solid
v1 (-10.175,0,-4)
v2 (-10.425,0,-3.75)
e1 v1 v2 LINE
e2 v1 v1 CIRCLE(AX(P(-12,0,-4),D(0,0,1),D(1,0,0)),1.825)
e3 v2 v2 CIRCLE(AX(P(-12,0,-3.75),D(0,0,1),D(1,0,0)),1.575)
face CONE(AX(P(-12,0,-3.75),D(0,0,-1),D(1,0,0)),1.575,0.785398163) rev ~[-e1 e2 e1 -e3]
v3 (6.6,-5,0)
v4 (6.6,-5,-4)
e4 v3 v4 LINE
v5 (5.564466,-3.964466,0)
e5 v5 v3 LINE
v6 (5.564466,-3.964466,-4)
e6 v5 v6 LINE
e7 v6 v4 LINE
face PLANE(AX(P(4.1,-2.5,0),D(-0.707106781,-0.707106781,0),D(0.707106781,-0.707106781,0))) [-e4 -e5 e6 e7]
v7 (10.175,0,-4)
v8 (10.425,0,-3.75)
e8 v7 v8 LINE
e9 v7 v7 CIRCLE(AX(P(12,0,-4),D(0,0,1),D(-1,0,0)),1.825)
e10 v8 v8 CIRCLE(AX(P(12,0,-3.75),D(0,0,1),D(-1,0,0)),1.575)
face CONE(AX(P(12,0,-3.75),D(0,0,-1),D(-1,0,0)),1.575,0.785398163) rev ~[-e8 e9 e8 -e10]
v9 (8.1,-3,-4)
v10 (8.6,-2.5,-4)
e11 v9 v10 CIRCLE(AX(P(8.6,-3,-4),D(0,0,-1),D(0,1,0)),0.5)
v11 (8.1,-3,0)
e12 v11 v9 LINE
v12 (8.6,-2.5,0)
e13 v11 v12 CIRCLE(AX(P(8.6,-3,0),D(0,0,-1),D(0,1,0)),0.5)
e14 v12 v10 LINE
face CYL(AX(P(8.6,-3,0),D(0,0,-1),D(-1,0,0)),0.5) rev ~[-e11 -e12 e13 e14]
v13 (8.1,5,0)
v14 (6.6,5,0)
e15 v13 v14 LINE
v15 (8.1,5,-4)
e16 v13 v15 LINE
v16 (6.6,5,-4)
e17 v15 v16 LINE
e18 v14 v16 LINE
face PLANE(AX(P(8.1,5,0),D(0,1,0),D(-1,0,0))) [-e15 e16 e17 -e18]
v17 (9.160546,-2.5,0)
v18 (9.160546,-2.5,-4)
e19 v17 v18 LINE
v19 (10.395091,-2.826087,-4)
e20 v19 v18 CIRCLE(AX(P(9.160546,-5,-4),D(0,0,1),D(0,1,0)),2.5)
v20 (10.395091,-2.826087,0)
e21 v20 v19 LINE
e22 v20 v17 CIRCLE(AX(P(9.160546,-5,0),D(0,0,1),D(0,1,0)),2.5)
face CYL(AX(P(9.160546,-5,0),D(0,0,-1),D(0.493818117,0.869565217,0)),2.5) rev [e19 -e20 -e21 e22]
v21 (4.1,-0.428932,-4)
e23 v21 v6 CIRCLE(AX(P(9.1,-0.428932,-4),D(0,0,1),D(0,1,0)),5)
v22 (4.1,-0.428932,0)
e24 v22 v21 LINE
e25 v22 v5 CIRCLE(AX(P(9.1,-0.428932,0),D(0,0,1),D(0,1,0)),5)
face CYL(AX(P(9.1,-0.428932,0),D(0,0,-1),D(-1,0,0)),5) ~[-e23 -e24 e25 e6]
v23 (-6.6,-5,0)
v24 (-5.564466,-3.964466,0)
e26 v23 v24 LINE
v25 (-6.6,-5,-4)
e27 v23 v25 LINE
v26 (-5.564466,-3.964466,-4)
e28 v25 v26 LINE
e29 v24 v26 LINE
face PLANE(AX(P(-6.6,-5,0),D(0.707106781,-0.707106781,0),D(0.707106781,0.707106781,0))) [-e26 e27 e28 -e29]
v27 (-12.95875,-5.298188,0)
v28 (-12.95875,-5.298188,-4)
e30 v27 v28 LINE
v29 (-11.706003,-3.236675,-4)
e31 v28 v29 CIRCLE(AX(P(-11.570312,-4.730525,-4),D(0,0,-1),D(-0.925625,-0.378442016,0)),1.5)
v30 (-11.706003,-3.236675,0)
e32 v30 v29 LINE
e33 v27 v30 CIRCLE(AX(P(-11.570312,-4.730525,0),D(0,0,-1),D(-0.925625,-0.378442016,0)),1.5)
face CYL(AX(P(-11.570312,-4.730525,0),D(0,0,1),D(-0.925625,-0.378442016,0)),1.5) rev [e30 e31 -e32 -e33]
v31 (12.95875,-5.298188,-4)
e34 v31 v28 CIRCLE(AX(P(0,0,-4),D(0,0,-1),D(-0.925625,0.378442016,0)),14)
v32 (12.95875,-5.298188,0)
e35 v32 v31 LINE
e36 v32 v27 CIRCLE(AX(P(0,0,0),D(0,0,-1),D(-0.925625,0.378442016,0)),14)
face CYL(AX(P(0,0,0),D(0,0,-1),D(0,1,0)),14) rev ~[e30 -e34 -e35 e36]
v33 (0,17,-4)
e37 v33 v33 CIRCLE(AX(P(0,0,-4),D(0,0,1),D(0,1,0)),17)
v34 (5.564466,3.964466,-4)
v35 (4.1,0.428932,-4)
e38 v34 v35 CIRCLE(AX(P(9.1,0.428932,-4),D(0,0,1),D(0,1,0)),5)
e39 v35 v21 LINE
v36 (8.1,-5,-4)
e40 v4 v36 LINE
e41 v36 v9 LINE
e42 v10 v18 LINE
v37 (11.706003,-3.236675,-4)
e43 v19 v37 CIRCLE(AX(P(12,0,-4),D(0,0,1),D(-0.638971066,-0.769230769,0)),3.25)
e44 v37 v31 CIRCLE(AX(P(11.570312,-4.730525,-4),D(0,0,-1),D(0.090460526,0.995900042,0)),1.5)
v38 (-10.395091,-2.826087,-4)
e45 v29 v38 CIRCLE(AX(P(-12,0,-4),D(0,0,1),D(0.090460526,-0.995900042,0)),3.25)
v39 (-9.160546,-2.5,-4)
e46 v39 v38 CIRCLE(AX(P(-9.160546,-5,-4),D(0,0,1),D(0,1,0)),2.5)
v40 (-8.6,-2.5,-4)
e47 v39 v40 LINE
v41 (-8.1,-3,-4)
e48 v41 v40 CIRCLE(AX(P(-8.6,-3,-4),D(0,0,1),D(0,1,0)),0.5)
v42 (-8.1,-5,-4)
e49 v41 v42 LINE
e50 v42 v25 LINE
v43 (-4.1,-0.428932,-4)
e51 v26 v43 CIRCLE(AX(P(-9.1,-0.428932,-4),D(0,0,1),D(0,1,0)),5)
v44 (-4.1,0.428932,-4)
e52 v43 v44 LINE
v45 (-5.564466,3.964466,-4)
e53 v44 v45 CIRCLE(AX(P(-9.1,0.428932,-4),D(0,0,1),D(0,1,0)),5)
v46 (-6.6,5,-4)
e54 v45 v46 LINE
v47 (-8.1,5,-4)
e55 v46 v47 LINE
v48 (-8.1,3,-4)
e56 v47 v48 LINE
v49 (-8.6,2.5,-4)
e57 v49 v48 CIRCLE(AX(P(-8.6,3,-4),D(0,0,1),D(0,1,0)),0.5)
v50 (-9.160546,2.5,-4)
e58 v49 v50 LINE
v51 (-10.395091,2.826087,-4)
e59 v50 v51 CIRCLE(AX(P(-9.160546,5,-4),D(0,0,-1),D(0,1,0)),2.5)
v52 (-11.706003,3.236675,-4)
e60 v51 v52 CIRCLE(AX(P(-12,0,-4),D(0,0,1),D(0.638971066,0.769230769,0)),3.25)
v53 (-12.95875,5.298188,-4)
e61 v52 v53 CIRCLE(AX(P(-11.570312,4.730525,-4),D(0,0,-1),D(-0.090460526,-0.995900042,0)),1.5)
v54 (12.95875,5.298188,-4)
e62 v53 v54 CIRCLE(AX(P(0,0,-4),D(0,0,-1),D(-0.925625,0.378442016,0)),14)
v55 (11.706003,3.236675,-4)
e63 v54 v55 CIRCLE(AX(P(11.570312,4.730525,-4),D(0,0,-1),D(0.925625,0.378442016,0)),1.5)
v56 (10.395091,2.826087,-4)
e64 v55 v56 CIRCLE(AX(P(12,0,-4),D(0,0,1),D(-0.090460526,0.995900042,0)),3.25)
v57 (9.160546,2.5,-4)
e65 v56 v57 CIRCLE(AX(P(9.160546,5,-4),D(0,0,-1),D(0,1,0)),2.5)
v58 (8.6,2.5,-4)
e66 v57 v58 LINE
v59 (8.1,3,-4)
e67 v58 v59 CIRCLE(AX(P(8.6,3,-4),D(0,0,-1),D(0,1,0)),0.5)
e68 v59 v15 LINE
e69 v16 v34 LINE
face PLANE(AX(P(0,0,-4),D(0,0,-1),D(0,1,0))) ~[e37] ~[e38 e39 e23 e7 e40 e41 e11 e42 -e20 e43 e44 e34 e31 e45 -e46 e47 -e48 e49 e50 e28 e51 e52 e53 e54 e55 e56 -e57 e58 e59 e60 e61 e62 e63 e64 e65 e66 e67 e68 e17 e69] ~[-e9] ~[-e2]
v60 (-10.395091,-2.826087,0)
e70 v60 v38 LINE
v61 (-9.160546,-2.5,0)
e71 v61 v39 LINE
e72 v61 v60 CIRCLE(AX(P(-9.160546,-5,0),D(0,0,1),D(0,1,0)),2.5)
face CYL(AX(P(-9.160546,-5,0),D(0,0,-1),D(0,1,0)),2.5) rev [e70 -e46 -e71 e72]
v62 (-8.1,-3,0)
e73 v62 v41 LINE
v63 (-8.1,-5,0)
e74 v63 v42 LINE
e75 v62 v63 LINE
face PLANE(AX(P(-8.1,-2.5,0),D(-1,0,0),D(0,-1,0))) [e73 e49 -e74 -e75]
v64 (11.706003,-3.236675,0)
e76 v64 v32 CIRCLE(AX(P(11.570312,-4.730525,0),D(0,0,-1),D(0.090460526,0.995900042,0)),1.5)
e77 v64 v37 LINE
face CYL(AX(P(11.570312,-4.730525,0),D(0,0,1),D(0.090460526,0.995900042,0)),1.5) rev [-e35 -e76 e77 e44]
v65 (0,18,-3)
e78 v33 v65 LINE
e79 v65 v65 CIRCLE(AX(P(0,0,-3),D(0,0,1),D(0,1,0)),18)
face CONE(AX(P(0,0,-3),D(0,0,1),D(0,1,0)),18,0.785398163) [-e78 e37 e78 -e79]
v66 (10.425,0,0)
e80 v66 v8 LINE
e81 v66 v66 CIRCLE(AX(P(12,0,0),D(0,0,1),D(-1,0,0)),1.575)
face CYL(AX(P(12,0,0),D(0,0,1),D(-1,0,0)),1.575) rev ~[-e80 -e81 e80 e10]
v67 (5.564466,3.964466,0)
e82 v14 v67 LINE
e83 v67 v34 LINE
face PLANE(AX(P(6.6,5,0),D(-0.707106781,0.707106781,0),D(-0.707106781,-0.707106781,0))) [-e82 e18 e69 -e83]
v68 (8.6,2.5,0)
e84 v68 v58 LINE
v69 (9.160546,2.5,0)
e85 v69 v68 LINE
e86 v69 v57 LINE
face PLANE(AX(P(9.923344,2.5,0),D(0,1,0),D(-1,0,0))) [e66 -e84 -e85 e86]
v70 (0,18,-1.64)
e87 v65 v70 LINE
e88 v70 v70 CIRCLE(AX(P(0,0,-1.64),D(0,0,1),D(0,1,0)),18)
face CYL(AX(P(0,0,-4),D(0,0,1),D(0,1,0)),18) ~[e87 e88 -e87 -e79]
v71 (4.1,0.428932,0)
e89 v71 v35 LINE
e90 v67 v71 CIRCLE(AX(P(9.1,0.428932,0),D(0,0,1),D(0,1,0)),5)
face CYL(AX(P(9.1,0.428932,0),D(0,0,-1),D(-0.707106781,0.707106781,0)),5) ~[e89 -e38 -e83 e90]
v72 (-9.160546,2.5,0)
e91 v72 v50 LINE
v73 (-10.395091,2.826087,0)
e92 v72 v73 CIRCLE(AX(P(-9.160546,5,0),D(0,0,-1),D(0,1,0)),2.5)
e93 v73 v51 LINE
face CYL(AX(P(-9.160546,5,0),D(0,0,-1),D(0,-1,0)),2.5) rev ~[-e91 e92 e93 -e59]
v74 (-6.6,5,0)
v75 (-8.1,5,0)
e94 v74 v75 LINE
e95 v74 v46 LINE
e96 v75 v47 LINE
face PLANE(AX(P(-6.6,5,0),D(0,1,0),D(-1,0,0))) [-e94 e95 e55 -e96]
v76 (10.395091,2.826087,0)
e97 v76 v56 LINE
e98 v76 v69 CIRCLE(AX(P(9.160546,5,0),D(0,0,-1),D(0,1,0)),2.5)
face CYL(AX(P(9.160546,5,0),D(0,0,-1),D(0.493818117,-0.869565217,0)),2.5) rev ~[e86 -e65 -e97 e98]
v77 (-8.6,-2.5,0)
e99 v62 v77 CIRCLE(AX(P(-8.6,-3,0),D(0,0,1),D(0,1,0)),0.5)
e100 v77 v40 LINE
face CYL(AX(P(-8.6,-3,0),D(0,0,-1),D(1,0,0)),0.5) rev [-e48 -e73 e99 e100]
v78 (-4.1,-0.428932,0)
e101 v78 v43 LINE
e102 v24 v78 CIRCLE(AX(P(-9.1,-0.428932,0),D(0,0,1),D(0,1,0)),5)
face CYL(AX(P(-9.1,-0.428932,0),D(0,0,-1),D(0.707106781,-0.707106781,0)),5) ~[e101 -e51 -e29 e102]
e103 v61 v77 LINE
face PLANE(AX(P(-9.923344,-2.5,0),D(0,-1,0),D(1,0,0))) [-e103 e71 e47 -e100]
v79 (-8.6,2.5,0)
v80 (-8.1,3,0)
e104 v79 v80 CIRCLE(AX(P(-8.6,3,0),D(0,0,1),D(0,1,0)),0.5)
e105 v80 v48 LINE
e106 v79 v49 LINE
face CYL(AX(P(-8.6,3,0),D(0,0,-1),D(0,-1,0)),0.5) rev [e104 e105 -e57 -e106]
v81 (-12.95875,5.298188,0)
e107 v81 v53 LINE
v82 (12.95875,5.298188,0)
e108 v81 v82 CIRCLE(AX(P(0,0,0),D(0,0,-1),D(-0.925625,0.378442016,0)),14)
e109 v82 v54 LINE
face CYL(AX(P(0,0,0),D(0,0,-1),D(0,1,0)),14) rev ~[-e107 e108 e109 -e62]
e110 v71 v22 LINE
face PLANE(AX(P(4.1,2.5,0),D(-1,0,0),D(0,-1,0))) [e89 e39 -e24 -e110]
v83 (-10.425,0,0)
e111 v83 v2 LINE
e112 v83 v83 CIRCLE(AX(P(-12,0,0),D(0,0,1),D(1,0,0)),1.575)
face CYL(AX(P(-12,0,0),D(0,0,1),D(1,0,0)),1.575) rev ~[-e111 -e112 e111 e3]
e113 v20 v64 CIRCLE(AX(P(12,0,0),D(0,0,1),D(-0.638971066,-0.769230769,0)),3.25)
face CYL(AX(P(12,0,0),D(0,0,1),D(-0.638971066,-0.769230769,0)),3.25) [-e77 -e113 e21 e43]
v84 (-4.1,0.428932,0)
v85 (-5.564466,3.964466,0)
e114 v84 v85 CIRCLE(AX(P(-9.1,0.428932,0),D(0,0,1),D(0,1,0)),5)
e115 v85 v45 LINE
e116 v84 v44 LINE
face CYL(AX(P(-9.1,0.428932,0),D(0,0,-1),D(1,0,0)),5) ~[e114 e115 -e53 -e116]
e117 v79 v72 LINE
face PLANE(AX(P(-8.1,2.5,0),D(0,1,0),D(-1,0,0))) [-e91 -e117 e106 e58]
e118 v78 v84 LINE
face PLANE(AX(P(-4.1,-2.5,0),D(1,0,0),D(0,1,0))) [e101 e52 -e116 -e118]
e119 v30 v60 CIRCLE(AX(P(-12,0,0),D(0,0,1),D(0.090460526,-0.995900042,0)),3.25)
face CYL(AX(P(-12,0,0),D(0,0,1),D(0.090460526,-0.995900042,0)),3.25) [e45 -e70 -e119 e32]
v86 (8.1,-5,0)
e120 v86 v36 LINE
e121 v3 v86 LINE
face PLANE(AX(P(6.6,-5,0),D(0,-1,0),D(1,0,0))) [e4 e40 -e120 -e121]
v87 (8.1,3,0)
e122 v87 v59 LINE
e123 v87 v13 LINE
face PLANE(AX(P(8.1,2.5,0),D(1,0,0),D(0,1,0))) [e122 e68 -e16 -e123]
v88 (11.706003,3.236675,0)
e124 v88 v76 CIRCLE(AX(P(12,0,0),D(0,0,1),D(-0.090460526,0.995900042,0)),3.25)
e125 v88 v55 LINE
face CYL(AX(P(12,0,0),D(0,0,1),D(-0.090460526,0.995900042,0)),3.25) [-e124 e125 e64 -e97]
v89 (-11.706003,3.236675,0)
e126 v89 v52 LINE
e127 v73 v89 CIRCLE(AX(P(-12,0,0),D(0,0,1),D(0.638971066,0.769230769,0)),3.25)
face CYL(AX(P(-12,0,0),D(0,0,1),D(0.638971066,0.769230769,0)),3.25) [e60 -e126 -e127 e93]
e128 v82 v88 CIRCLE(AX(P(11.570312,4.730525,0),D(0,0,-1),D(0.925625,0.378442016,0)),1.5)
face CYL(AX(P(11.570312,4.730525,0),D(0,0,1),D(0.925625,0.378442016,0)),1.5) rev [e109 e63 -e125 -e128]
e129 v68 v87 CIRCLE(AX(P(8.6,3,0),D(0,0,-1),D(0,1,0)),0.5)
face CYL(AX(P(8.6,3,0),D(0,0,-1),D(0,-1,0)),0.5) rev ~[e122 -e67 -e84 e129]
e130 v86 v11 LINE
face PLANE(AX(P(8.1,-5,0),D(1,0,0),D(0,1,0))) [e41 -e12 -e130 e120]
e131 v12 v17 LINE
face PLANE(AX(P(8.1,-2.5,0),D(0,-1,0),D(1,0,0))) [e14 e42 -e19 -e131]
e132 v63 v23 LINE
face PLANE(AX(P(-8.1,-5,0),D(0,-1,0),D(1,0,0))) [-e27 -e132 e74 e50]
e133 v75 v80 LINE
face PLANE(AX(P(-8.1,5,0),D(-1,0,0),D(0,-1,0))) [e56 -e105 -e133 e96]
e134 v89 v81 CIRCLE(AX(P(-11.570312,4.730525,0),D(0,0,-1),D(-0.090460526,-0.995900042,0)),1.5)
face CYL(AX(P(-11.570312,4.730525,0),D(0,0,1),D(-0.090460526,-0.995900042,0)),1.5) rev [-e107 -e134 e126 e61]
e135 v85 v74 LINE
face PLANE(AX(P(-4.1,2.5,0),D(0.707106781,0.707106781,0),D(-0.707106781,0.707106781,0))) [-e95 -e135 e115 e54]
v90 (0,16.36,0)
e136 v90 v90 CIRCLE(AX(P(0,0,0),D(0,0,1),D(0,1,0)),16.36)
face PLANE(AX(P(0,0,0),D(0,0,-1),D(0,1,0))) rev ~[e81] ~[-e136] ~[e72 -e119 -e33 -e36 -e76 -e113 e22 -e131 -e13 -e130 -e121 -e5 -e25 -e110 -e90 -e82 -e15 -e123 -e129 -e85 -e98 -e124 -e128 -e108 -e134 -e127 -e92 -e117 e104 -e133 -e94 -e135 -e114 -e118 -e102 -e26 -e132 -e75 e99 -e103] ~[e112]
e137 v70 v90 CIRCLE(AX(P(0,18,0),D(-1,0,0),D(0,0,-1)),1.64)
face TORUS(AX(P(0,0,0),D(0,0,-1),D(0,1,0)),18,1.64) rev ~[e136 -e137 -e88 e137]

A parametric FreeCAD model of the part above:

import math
import FreeCAD as App
import Part
import Sketcher
from FreeCAD import Vector
Q = App.Units.Quantity


def edges_at(feature, points):
    """Names of the edges that pass closest to the given points."""
    edges = feature.Shape.Edges
    near = lambda p: min(range(len(edges)), key=lambda i: edges[i].distToShape(Part.Vertex(*p))[0])
    return sorted({f"Edge{near(p) + 1}" for p in points})

doc = App.newDocument("Part")
body = doc.addObject("PartDesign::Body", "Body")

sketch1 = doc.addObject("Sketcher::SketchObject", "Sketch")
body.addObject(sketch1)
sketch1.AttachmentSupport = (doc.YZ_Plane, [""])
sketch1.MapMode = "FlatFace"
sketch1.addGeometry(Part.LineSegment(Vector(16.36, 0, 0), Vector(14, 0, 0)), False)
sketch1.addGeometry(Part.LineSegment(Vector(14, 0, 0), Vector(14, -4, 0)), False)
sketch1.addGeometry(Part.LineSegment(Vector(14, -4, 0), Vector(18, -4, 0)), False)
sketch1.addGeometry(Part.LineSegment(Vector(18, -4, 0), Vector(18, -1.64, 0)), False)
sketch1.addGeometry(Part.ArcOfCircle(Part.Circle(Vector(18, 0, 0), Vector(0, 0, 1), 1.64), math.radians(180), math.radians(270)), False)
sketch1.addConstraint(Sketcher.Constraint("Coincident", 0, 2, 1, 1))
sketch1.addConstraint(Sketcher.Constraint("Coincident", 1, 2, 2, 1))
sketch1.addConstraint(Sketcher.Constraint("Coincident", 2, 2, 3, 1))
sketch1.addConstraint(Sketcher.Constraint("Coincident", 3, 2, 4, 2))
sketch1.addConstraint(Sketcher.Constraint("Coincident", 4, 1, 0, 1))
sketch1.addConstraint(Sketcher.Constraint("Horizontal", 0))
sketch1.addConstraint(Sketcher.Constraint("Vertical", 1))
sketch1.addConstraint(Sketcher.Constraint("Horizontal", 2))
sketch1.addConstraint(Sketcher.Constraint("Vertical", 3))
sketch1.addConstraint(Sketcher.Constraint("PointOnObject", 4, 3, -1))
sketch1.addConstraint(Sketcher.Constraint("PointOnObject", 0, 2, -1))
sketch1.addConstraint(Sketcher.Constraint("Vertical", 4, 3, 2, 2))
sketch1.addConstraint(Sketcher.Constraint("Equal", 2, 1))
sketch1.addConstraint(Sketcher.Constraint("DistanceX", 2, 1, 2, 2, Q("4 mm")))
sketch1.addConstraint(Sketcher.Constraint("Radius", 4, Q("1.64 mm")))
sketch1.addConstraint(Sketcher.Constraint("DistanceX", -1, 1, 4, 3, Q("18 mm")))
revolution = doc.addObject("PartDesign::Revolution", "Revolution")
body.addObject(revolution)
revolution.Profile = sketch1
revolution.ReferenceAxis = (sketch1, ["V_Axis"])
revolution.Angle = 360

sketch2 = doc.addObject("Sketcher::SketchObject", "Sketch001")
body.addObject(sketch2)
sketch2.AttachmentSupport = (doc.XY_Plane, [""])
sketch2.MapMode = "FlatFace"
sketch2.addGeometry(Part.LineSegment(Vector(-8.1, 2.5, 0), Vector(-9.923344, 2.5, 0)), False)
sketch2.addGeometry(Part.ArcOfCircle(Part.Circle(Vector(-12, 0, 0), Vector(0, 0, 1), 3.25), math.radians(50.284863), math.radians(84.809899)), False)
sketch2.addGeometry(Part.ArcOfCircle(Part.Circle(Vector(-11.570312, 4.730525, 0), Vector(0, 0, 1), 1.5), math.radians(157.762789), math.radians(264.809899)), False)
sketch2.addGeometry(Part.ArcOfCircle(Part.Circle(Vector(0, 0, 0), Vector(0, 0, 1), 14), math.radians(157.762789), math.radians(202.237211)), False)
sketch2.addGeometry(Part.ArcOfCircle(Part.Circle(Vector(-11.570312, -4.730525, 0), Vector(0, 0, 1), 1.5), math.radians(95.190101), math.radians(202.237211)), False)
sketch2.addGeometry(Part.ArcOfCircle(Part.Circle(Vector(-12, 0, 0), Vector(0, 0, 1), 3.25), math.radians(-84.809899), math.radians(-50.284863)), False)
sketch2.addGeometry(Part.LineSegment(Vector(-9.923344, -2.5, 0), Vector(-8.1, -2.5, 0)), False)
sketch2.addGeometry(Part.LineSegment(Vector(-8.1, -2.5, 0), Vector(-8.1, -5, 0)), False)
sketch2.addGeometry(Part.LineSegment(Vector(-8.1, -5, 0), Vector(-6.6, -5, 0)), False)
sketch2.addGeometry(Part.LineSegment(Vector(-6.6, -5, 0), Vector(-4.1, -2.5, 0)), False)
sketch2.addGeometry(Part.LineSegment(Vector(-4.1, -2.5, 0), Vector(-4.1, 2.5, 0)), False)
sketch2.addGeometry(Part.LineSegment(Vector(-4.1, 2.5, 0), Vector(-6.6, 5, 0)), False)
sketch2.addGeometry(Part.LineSegment(Vector(-6.6, 5, 0), Vector(-8.1, 5, 0)), False)
sketch2.addGeometry(Part.LineSegment(Vector(-8.1, 5, 0), Vector(-8.1, 2.5, 0)), False)
sketch2.addGeometry(Part.Circle(Vector(-12, 0, 0), Vector(0, 0, 1), 1.575), False)
sketch2.addConstraint(Sketcher.Constraint("Coincident", 0, 2, 1, 1))
sketch2.addConstraint(Sketcher.Constraint("Tangent", 1, 2, 2, 2))
sketch2.addConstraint(Sketcher.Constraint("Tangent", 2, 1, 3, 1))
sketch2.addConstraint(Sketcher.Constraint("Tangent", 3, 2, 4, 2))
sketch2.addConstraint(Sketcher.Constraint("Tangent", 4, 1, 5, 1))
sketch2.addConstraint(Sketcher.Constraint("Coincident", 5, 2, 6, 1))
sketch2.addConstraint(Sketcher.Constraint("Coincident", 6, 2, 7, 1))
sketch2.addConstraint(Sketcher.Constraint("Coincident", 7, 2, 8, 1))
sketch2.addConstraint(Sketcher.Constraint("Coincident", 8, 2, 9, 1))
sketch2.addConstraint(Sketcher.Constraint("Coincident", 9, 2, 10, 1))
sketch2.addConstraint(Sketcher.Constraint("Coincident", 10, 2, 11, 1))
sketch2.addConstraint(Sketcher.Constraint("Coincident", 11, 2, 12, 1))
sketch2.addConstraint(Sketcher.Constraint("Coincident", 12, 2, 13, 1))
sketch2.addConstraint(Sketcher.Constraint("Coincident", 13, 2, 0, 1))
sketch2.addConstraint(Sketcher.Constraint("Horizontal", 0))
sketch2.addConstraint(Sketcher.Constraint("Horizontal", 6))
sketch2.addConstraint(Sketcher.Constraint("Vertical", 7))
sketch2.addConstraint(Sketcher.Constraint("Horizontal", 8))
sketch2.addConstraint(Sketcher.Constraint("Vertical", 10))
sketch2.addConstraint(Sketcher.Constraint("Horizontal", 12))
sketch2.addConstraint(Sketcher.Constraint("Vertical", 13))
sketch2.addConstraint(Sketcher.Constraint("Coincident", 3, 3, -1, 1))
sketch2.addConstraint(Sketcher.Constraint("Coincident", 5, 3, 1, 3))
sketch2.addConstraint(Sketcher.Constraint("Coincident", 14, 3, 1, 3))
sketch2.addConstraint(Sketcher.Constraint("Equal", 2, 4))
sketch2.addConstraint(Sketcher.Constraint("Equal", 1, 5))
sketch2.addConstraint(Sketcher.Constraint("Symmetric", 0, 2, 5, 2, -1))
sketch2.addConstraint(Sketcher.Constraint("Symmetric", 8, 2, 11, 2, -1))
sketch2.addConstraint(Sketcher.Constraint("Perpendicular", 9, 11))
sketch2.addConstraint(Sketcher.Constraint("Horizontal", 6, 2, 9, 2))
sketch2.addConstraint(Sketcher.Constraint("Horizontal", 0, 2, 10, 2))
sketch2.addConstraint(Sketcher.Constraint("Vertical", 7, 2, 12, 2))
sketch2.addConstraint(Sketcher.Constraint("Radius", 3, Q("14 mm")))
sketch2.addConstraint(Sketcher.Constraint("Radius", 2, Q("1.5 mm")))
sketch2.addConstraint(Sketcher.Constraint("Diameter", 14, Q("3.15 mm")))
sketch2.addConstraint(Sketcher.Constraint("DistanceY", 10, 1, 10, 2, Q("5 mm")))
sketch2.addConstraint(Sketcher.Constraint("Radius", 1, Q("3.25 mm")))
sketch2.addConstraint(Sketcher.Constraint("DistanceX", 8, 1, 8, 2, Q("1.5 mm")))
sketch2.addConstraint(Sketcher.Constraint("DistanceY", 7, 2, 7, 1, Q("2.5 mm")))
sketch2.addConstraint(Sketcher.Constraint("DistanceX", 1, 3, -1, 1, Q("12 mm")))
sketch2.addConstraint(Sketcher.Constraint("DistanceX", 6, 2, -1, 1, Q("8.1 mm")))
pad1 = doc.addObject("PartDesign::Pad", "Pad")
body.addObject(pad1)
pad1.Profile = sketch2
pad1.Length = 4
pad1.Reversed = True
body2 = doc.addObject("PartDesign::Body", "Body001")
doc.recompute()

body2.BaseFeature = body
doc.recompute()

body.Placement = App.Placement(Vector(0, 0, 0), App.Rotation(Vector(0, 0, -1), 180))
boolean = doc.addObject("PartDesign::Boolean", "Boolean")
body2.addObject(boolean)
boolean.Type = "Fuse"
boolean.addObjects([body])
doc.recompute()

fillet = doc.addObject("PartDesign::Fillet", "Fillet")
body2.addObject(fillet)
fillet.Base = (boolean, edges_at(boolean, [
    (-4.1, -2.5, -2),
    (-4.1, 2.5, -2),
    (4.1, 2.5, -2),
    (4.1, -2.5, -2),
]))
fillet.Radius = 5
doc.recompute()

fillet2 = doc.addObject("PartDesign::Fillet", "Fillet001")
body2.addObject(fillet2)
fillet2.Base = (fillet, edges_at(fillet, [
    (-9.923, 2.5, -2),
    (-9.923, -2.5, -2),
    (9.923, 2.5, -2),
    (9.923, -2.5, -2),
]))
fillet2.Radius = 2.5
doc.recompute()

fillet3 = doc.addObject("PartDesign::Fillet", "Fillet002")
body2.addObject(fillet3)
fillet3.Base = (fillet2, edges_at(fillet2, [
    (-8.1, 2.5, -2),
    (-8.1, -2.5, -2),
    (8.1, -2.5, -2),
    (8.1, 2.5, -2),
]))
fillet3.Radius = 0.5
doc.recompute()

chamfer = doc.addObject("PartDesign::Chamfer", "Chamfer")
body2.addObject(chamfer)
chamfer.Base = (fillet3, edges_at(fillet3, [(0, -18, -4)]))
chamfer.Size = 1
doc.recompute()

chamfer2 = doc.addObject("PartDesign::Chamfer", "Chamfer001")
body2.addObject(chamfer2)
chamfer2.Base = (chamfer, edges_at(chamfer, [(13.575, 0, -4), (-13.575, 0, -4)]))
chamfer2.Size = 0.25

doc.recompute()
